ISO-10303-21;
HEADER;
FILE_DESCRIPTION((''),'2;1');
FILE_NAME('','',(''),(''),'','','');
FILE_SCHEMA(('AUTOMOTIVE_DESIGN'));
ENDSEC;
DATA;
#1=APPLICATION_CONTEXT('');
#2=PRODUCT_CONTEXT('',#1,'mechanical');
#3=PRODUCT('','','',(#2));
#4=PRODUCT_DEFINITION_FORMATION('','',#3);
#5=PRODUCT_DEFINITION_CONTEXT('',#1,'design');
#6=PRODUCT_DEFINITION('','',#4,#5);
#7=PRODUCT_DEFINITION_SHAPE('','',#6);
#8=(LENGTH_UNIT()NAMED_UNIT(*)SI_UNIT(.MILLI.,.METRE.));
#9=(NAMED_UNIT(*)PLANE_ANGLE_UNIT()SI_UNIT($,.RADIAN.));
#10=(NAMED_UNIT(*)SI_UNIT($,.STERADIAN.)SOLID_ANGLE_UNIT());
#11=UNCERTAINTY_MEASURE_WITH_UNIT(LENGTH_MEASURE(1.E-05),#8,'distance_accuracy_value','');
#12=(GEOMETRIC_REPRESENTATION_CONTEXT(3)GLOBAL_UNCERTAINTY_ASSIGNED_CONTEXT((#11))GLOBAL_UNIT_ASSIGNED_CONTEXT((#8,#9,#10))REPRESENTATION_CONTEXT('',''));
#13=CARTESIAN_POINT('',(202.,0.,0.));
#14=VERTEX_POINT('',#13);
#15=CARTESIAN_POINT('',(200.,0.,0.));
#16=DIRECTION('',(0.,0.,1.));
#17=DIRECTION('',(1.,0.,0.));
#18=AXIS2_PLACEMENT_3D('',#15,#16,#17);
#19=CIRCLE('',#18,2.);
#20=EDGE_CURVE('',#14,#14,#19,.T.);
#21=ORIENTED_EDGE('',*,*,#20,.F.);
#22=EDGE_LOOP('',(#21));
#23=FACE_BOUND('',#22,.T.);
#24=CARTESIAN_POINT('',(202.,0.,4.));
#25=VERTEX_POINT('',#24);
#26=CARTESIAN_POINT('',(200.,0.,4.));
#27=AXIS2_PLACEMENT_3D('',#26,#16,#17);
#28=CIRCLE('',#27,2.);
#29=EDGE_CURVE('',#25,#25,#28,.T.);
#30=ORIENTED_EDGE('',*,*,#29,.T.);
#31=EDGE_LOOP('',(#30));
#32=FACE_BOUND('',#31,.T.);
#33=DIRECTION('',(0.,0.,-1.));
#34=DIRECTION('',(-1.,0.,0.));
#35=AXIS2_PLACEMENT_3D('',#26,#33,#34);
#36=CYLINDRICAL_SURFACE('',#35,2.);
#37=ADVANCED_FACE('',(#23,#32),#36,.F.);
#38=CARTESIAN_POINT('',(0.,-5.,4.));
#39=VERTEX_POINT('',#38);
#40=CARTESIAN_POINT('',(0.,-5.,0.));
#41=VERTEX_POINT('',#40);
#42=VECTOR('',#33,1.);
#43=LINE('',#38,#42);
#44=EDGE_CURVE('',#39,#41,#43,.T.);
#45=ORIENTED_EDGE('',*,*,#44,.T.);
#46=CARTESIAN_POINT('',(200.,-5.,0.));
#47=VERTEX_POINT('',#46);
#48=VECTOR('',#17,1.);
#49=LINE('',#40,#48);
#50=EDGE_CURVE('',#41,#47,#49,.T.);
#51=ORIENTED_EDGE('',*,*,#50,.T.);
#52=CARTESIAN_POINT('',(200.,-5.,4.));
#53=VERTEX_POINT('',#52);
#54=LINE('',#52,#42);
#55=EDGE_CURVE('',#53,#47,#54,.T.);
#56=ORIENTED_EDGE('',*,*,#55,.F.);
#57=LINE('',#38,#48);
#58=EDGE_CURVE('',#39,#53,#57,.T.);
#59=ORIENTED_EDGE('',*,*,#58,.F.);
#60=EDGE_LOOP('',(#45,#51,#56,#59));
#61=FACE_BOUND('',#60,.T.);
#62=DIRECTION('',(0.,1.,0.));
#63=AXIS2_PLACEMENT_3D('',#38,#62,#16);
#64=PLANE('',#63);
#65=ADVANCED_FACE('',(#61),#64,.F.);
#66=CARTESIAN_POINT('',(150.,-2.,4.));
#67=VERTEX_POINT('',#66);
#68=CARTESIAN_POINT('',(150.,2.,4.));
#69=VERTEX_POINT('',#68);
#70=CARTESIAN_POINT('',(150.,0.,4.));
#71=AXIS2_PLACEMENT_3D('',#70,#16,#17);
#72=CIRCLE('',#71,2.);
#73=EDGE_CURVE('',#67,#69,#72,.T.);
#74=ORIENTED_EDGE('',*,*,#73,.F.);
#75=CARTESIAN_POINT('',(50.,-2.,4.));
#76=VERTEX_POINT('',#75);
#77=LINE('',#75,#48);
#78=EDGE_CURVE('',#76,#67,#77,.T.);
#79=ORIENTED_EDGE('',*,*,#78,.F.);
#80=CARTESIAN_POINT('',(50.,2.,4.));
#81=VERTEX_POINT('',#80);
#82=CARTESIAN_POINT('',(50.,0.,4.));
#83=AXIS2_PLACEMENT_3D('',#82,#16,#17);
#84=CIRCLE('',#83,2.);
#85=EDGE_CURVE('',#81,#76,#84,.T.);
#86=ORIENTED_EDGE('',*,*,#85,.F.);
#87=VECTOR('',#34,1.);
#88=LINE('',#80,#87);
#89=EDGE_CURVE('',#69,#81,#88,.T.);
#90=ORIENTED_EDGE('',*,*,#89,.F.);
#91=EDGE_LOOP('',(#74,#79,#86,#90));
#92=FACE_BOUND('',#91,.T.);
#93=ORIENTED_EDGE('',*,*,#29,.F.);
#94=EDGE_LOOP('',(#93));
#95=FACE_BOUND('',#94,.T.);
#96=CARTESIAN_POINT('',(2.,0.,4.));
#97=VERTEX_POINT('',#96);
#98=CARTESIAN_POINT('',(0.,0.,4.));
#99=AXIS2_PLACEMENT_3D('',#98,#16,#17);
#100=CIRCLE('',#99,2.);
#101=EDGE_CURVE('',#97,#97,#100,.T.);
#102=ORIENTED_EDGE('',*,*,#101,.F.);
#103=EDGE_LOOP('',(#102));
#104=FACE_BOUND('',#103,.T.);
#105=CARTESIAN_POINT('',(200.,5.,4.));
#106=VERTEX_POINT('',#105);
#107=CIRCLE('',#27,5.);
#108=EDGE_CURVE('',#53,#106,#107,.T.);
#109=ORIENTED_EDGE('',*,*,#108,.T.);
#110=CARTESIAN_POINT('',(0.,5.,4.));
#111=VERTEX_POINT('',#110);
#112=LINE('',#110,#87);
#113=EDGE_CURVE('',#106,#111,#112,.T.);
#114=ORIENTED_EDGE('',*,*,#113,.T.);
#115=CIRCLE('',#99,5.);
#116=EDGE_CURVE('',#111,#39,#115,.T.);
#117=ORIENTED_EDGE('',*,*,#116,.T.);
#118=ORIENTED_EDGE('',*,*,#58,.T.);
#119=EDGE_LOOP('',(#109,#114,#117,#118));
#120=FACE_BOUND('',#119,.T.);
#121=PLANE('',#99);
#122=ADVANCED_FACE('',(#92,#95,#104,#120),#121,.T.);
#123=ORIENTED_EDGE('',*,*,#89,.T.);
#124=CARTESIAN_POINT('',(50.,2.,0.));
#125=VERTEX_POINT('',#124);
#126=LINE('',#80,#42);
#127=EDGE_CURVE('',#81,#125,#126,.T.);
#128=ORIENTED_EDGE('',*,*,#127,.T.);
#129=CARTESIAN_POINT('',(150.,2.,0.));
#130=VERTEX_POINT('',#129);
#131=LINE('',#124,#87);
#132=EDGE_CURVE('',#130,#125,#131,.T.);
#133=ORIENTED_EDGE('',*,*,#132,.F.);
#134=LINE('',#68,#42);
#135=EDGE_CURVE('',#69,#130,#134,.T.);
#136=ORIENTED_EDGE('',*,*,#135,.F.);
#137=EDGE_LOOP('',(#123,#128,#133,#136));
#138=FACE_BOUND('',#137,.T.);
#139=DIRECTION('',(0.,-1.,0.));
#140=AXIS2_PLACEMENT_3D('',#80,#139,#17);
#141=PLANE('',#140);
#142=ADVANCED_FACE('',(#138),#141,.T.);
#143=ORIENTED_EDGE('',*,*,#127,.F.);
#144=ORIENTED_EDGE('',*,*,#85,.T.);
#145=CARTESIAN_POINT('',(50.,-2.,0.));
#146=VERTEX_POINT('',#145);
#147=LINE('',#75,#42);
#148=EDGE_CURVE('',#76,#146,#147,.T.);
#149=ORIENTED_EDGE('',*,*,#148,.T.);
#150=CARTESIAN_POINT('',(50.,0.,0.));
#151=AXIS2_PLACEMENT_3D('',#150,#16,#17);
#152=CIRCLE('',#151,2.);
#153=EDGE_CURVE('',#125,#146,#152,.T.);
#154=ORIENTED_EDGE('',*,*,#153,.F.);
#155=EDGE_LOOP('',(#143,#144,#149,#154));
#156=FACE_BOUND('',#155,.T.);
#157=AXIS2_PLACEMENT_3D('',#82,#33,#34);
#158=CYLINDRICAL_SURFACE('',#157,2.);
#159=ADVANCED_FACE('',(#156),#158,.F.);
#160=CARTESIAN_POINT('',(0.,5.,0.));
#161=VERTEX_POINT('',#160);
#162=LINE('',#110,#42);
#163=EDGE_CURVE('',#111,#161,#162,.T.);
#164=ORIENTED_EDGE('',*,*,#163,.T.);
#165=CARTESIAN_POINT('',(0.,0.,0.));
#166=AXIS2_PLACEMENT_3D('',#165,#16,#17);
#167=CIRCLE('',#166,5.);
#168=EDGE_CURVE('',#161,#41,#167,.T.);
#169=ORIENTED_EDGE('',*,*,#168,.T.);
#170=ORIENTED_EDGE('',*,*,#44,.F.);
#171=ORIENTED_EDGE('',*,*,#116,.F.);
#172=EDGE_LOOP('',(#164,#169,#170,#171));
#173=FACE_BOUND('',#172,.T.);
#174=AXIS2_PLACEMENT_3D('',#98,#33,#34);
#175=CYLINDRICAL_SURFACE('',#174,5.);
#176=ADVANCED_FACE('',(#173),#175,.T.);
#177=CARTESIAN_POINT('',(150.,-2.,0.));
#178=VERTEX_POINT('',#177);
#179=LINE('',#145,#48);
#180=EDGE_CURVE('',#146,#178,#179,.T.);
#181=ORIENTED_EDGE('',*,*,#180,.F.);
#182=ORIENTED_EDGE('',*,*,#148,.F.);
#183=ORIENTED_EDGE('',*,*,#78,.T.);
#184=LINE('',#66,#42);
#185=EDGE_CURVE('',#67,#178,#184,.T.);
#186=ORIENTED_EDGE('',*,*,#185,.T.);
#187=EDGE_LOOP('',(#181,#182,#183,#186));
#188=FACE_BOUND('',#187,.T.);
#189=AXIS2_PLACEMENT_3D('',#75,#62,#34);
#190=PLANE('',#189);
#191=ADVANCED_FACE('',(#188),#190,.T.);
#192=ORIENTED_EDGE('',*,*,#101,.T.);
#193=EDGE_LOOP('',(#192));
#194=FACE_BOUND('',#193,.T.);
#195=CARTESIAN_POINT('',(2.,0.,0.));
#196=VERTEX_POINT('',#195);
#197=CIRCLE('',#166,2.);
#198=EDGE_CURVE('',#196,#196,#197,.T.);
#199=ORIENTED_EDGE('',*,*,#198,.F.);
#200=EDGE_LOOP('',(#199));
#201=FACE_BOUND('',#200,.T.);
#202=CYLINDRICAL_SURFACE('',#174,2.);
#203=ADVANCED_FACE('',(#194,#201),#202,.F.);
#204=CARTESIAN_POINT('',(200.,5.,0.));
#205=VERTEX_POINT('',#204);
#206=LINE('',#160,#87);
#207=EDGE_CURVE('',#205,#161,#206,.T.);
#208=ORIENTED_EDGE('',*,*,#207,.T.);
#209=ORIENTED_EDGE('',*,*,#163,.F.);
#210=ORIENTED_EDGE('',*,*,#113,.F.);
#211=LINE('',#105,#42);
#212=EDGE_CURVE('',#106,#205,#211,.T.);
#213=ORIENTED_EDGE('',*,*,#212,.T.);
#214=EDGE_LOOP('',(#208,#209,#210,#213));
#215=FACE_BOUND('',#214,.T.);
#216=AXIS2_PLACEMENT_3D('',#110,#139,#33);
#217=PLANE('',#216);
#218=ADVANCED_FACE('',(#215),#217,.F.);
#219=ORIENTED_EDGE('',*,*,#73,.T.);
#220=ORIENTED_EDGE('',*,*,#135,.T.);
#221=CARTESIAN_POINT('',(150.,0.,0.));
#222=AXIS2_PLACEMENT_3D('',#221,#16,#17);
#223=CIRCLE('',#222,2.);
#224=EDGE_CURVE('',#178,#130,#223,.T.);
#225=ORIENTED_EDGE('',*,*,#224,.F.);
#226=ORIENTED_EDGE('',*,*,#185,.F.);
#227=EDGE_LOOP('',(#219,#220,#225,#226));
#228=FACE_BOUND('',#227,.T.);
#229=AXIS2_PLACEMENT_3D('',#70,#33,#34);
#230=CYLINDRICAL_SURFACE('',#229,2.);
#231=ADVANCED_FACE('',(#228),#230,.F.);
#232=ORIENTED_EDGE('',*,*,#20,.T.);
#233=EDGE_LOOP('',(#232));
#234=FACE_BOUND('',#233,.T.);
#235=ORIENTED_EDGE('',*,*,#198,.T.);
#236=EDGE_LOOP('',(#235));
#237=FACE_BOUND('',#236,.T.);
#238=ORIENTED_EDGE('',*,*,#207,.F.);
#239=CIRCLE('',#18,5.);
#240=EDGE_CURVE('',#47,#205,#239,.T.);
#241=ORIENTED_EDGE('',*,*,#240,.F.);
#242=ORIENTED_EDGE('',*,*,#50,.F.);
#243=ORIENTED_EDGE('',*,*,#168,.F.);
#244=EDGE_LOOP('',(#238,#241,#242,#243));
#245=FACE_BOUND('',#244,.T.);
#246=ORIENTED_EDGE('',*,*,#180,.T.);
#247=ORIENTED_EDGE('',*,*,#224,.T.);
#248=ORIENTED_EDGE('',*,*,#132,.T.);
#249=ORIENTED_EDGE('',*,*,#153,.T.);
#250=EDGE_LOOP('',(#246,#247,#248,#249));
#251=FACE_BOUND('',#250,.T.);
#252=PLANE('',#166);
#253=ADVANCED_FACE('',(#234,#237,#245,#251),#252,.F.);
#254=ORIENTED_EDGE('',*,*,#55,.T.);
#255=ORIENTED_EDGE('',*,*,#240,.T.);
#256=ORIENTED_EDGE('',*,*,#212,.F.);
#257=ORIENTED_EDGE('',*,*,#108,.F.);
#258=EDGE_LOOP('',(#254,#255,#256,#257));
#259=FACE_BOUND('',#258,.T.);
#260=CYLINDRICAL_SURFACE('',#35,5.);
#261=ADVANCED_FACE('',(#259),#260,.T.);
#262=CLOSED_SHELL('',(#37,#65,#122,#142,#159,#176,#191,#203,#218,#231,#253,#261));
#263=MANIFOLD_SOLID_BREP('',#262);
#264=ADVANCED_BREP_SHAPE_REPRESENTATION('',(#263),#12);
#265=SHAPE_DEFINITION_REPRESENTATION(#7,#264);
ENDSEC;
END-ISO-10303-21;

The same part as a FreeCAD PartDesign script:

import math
import FreeCAD as App
import Part
import Sketcher
from FreeCAD import Vector

doc = App.newDocument("Part")
body = doc.addObject("PartDesign::Body", "Body")

# Sketch on XY plane
sketch1 = body.newObject("Sketcher::SketchObject", "Sketch")
sketch1.AttachmentSupport = (doc.getObject("XY_Plane"), [""])
sketch1.MapMode = "FlatFace"
sketch1.addGeometry([
    Part.LineSegment(Vector(200, 5, 0), Vector(0, 5, 0)),  # 0
    Part.ArcOfCircle(Part.Circle(Vector(0, 0, 0), Vector(0, 0, 1), 5), math.radians(90), math.radians(270)),  # 1
    Part.LineSegment(Vector(0, -5, 0), Vector(200, -5, 0)),  # 2
    Part.ArcOfCircle(Part.Circle(Vector(200, 0, 0), Vector(0, 0, 1), 5), math.radians(-90), math.radians(90)),  # 3
    Part.Circle(Vector(200, 0, 0), Vector(0, 0, 1), 2),  # 4
    Part.LineSegment(Vector(50, 2, 0), Vector(150, 2, 0)),  # 5
    Part.ArcOfCircle(Part.Circle(Vector(150, 0, 0), Vector(0, 0, 1), 2), math.radians(-90), math.radians(90)),  # 6
    Part.LineSegment(Vector(150, -2, 0), Vector(50, -2, 0)),  # 7
    Part.ArcOfCircle(Part.Circle(Vector(50, 0, 0), Vector(0, 0, 1), 2), math.radians(90), math.radians(270)),  # 8
    Part.Circle(Vector(0, 0, 0), Vector(0, 0, 1), 2),  # 9
], False)
sketch1.addConstraint([
    Sketcher.Constraint("Tangent", 0, 2, 1, 1),
    Sketcher.Constraint("Tangent", 1, 2, 2, 1),
    Sketcher.Constraint("Tangent", 2, 2, 3, 1),
    Sketcher.Constraint("Tangent", 3, 2, 0, 1),
    Sketcher.Constraint("Tangent", 5, 2, 6, 2),
    Sketcher.Constraint("Tangent", 6, 1, 7, 1),
    Sketcher.Constraint("Tangent", 7, 2, 8, 2),
    Sketcher.Constraint("Tangent", 8, 1, 5, 1),
    Sketcher.Constraint("Horizontal", 0),
    Sketcher.Constraint("Horizontal", 2),
    Sketcher.Constraint("Horizontal", 5),
    Sketcher.Constraint("Horizontal", 7),
    Sketcher.Constraint("Coincident", 1, 3, -1, 1),
    Sketcher.Constraint("Coincident", 9, 3, -1, 1),
    Sketcher.Constraint("Coincident", 4, 3, 3, 3),
    Sketcher.Constraint("Equal", 4, 6),
    Sketcher.Constraint("Equal", 8, 9),
    Sketcher.Constraint("PointOnObject", 6, 3, -1),
    Sketcher.Constraint("Diameter", 4, 4.0),
    Sketcher.Constraint("Radius", 1, 5.0),
    Sketcher.Constraint("DistanceX", 0, 2, 0, 1, 200.0),
    Sketcher.Constraint("DistanceX", 5, 1, 5, 2, 100.0),
    Sketcher.Constraint("DistanceX", -1, 1, 6, 3, 150.0),
])
pad1 = body.newObject("PartDesign::Pad", "Pad")
pad1.Profile = sketch1
pad1.Length = 4

doc.recompute()
